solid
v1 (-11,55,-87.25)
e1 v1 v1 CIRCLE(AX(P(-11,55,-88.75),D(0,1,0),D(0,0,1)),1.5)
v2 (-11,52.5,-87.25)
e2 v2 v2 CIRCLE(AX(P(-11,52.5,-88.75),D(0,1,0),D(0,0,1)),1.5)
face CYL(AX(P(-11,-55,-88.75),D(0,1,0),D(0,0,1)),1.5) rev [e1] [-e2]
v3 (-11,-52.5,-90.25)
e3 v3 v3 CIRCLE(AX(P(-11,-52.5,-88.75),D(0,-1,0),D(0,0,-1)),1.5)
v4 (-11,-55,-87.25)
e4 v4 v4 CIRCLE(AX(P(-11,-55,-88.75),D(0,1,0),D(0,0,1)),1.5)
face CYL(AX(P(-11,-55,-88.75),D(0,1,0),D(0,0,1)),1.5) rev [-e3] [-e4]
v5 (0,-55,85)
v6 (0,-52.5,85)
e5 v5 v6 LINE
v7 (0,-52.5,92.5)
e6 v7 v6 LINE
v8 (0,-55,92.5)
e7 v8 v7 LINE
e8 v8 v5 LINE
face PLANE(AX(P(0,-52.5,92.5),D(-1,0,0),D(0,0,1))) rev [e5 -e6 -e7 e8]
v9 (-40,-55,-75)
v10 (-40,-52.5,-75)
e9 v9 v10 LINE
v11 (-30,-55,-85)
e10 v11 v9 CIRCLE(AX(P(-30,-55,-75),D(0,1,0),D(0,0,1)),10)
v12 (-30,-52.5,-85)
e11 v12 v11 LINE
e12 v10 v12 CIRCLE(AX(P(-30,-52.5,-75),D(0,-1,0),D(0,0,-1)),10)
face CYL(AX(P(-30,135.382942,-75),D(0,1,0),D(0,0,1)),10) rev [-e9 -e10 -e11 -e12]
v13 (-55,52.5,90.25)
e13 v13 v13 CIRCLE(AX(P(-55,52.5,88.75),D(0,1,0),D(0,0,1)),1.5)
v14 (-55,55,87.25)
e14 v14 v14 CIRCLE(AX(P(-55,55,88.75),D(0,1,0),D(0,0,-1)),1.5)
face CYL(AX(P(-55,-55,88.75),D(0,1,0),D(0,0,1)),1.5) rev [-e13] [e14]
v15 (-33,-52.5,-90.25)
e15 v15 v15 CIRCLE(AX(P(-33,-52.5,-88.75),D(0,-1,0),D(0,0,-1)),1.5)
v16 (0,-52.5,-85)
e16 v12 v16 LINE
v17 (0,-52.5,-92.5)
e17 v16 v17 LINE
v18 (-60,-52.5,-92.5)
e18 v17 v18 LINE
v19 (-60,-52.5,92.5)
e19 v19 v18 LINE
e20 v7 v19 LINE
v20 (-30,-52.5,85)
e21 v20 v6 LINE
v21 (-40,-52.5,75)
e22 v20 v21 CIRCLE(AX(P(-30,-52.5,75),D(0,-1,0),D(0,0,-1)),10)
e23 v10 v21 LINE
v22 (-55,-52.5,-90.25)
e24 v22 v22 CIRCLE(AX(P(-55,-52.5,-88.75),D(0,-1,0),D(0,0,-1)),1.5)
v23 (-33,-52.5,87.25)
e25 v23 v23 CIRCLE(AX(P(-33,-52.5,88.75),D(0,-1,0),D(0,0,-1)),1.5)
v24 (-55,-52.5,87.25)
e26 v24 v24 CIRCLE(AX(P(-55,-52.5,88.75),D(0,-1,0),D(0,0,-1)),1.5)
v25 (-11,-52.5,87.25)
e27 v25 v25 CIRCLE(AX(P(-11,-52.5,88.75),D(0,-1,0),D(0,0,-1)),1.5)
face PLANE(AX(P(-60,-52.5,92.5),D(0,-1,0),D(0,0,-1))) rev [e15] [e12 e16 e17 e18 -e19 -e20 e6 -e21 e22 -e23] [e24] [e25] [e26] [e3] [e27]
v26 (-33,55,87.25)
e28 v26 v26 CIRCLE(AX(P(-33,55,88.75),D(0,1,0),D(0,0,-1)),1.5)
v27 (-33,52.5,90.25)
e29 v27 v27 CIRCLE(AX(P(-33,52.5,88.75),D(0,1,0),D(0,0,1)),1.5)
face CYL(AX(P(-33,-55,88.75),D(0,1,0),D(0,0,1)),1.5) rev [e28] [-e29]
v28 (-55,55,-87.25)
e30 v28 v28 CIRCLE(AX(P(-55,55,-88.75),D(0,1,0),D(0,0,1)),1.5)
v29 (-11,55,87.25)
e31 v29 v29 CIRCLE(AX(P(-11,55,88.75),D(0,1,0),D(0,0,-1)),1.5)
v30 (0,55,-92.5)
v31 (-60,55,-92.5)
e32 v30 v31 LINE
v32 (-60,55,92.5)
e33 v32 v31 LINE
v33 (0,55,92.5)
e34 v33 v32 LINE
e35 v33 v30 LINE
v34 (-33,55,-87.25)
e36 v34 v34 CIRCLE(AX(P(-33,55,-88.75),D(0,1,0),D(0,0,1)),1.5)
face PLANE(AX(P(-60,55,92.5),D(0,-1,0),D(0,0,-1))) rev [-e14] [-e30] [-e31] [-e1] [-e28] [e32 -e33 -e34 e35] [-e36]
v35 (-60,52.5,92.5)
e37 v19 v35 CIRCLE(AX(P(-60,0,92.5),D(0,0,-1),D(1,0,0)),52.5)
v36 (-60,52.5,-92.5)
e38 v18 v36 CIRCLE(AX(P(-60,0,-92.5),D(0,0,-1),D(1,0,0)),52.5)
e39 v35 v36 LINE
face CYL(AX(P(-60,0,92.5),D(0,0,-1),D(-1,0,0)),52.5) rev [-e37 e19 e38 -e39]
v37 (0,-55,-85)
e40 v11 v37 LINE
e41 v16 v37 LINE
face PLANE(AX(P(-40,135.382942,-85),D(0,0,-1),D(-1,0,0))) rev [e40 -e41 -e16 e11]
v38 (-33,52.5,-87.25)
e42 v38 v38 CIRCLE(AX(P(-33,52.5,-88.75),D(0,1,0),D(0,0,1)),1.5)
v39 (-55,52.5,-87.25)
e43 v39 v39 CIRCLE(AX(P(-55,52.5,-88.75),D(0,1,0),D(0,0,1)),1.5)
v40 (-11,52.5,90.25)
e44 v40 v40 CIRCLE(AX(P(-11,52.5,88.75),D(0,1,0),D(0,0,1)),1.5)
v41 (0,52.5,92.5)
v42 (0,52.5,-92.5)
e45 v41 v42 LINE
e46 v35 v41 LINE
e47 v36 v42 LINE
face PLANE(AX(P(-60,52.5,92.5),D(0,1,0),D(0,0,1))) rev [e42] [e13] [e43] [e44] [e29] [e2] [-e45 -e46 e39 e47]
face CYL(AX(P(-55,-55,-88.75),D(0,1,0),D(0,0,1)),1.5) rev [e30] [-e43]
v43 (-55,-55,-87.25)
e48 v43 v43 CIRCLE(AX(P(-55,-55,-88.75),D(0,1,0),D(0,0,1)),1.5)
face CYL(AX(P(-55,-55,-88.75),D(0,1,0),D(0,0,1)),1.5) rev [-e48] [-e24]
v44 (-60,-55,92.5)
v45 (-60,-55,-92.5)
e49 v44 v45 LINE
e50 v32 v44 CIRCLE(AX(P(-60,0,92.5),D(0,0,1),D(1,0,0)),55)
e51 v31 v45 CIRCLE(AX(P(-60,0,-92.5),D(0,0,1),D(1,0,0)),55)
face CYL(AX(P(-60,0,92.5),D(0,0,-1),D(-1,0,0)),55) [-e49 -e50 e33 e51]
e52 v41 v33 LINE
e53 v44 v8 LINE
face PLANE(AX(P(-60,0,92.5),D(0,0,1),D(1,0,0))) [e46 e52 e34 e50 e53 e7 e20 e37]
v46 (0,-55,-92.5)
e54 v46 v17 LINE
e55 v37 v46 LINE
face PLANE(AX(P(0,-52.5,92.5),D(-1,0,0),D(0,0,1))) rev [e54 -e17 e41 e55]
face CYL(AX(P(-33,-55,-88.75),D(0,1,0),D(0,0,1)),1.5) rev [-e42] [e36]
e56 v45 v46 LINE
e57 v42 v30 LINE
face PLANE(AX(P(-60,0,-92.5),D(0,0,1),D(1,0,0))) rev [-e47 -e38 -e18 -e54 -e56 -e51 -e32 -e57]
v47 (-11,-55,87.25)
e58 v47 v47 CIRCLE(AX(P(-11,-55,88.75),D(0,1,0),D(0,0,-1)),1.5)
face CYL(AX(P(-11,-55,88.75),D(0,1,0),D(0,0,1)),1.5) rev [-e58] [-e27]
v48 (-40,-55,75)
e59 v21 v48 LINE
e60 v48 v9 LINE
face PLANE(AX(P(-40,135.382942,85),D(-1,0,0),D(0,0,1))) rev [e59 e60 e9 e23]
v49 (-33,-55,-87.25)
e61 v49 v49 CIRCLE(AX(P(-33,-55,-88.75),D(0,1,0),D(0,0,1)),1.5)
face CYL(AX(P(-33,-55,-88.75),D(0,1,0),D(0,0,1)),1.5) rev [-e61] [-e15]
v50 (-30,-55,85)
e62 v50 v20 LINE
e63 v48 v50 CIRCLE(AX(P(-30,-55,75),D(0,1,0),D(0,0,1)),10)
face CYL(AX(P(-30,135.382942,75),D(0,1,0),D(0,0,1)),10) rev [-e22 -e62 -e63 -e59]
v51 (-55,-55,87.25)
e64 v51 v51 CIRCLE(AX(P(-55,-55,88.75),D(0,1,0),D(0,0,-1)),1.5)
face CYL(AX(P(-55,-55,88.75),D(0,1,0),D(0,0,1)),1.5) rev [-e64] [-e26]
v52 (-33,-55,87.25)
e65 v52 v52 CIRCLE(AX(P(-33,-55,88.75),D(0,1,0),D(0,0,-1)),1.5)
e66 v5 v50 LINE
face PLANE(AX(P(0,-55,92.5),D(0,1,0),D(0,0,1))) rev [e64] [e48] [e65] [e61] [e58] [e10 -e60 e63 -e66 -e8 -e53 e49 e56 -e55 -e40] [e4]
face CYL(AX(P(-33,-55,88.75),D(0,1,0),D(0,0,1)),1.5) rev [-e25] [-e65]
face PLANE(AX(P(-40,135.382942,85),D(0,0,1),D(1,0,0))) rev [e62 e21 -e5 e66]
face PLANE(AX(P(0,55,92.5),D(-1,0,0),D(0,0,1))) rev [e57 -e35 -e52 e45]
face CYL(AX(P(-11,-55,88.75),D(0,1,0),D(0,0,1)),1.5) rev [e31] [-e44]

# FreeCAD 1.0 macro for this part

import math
import FreeCAD as App
import Part
import Sketcher
Q = App.Units.Quantity


def edges_at(feature, points):
    """Names of the edges that pass closest to the given points."""
    edges = feature.Shape.Edges
    near = lambda p: min(range(len(edges)), key=lambda i: edges[i].distToShape(Part.Vertex(*p))[0])
    return sorted({f"Edge{near(p) + 1}" for p in points})

doc = App.newDocument("Part")
body = doc.addObject("PartDesign::Body", "Body")

# Sketch on XY plane
sketch1 = doc.addObject("Sketcher::SketchObject", "Sketch")
body.addObject(sketch1)
sketch1.AttachmentSupport = (doc.XY_Plane, [""])
sketch1.MapMode = "FlatFace"
sketch1.addGeometry(Part.LineSegment(App.Vector(0, 55, 0), App.Vector(-60, 55, 0)), False)
sketch1.addGeometry(Part.ArcOfCircle(Part.Circle(App.Vector(-60, 0, 0), App.Vector(0, 0, 1), 55), math.radians(90), math.radians(270)), False)
sketch1.addGeometry(Part.LineSegment(App.Vector(-60, -55, 0), App.Vector(0, -55, 0)), False)
sketch1.addGeometry(Part.LineSegment(App.Vector(0, -55, 0), App.Vector(0, -52.5, 0)), False)
sketch1.addGeometry(Part.LineSegment(App.Vector(0, -52.5, 0), App.Vector(-60, -52.5, 0)), False)
sketch1.addGeometry(Part.ArcOfCircle(Part.Circle(App.Vector(-60, 0, 0), App.Vector(0, 0, 1), 52.5), math.radians(90), math.radians(270)), False)
sketch1.addGeometry(Part.LineSegment(App.Vector(-60, 52.5, 0), App.Vector(0, 52.5, 0)), False)
sketch1.addGeometry(Part.LineSegment(App.Vector(0, 52.5, 0), App.Vector(0, 55, 0)), False)
sketch1.addConstraint(Sketcher.Constraint("Tangent", 0, 2, 1, 1))
sketch1.addConstraint(Sketcher.Constraint("Tangent", 1, 2, 2, 1))
sketch1.addConstraint(Sketcher.Constraint("Coincident", 2, 2, 3, 1))
sketch1.addConstraint(Sketcher.Constraint("Coincident", 3, 2, 4, 1))
sketch1.addConstraint(Sketcher.Constraint("Tangent", 4, 2, 5, 2))
sketch1.addConstraint(Sketcher.Constraint("Tangent", 5, 1, 6, 1))
sketch1.addConstraint(Sketcher.Constraint("Coincident", 6, 2, 7, 1))
sketch1.addConstraint(Sketcher.Constraint("Coincident", 7, 2, 0, 1))
sketch1.addConstraint(Sketcher.Constraint("Horizontal", 0))
sketch1.addConstraint(Sketcher.Constraint("Horizontal", 2))
sketch1.addConstraint(Sketcher.Constraint("Vertical", 3))
sketch1.addConstraint(Sketcher.Constraint("Horizontal", 4))
sketch1.addConstraint(Sketcher.Constraint("Horizontal", 6))
sketch1.addConstraint(Sketcher.Constraint("Vertical", 7))
sketch1.addConstraint(Sketcher.Constraint("Coincident", 5, 3, 1, 3))
sketch1.addConstraint(Sketcher.Constraint("Symmetric", 3, 2, 6, 2, -1, 1))
sketch1.addConstraint(Sketcher.Constraint("PointOnObject", 2, 2, -2))
sketch1.addConstraint(Sketcher.Constraint("Radius", 1, Q("55 mm")))
sketch1.addConstraint(Sketcher.Constraint("Radius", 5, Q("52.5 mm")))
sketch1.addConstraint(Sketcher.Constraint("DistanceX", 0, 2, 0, 1, Q("60 mm")))
pad1 = doc.addObject("PartDesign::Pad", "Pad")
body.addObject(pad1)
pad1.Profile = sketch1
pad1.Length = 185
pad1.Midplane = True

# Sketch on XZ plane
sketch2 = doc.addObject("Sketcher::SketchObject", "Sketch001")
body.addObject(sketch2)
sketch2.AttachmentSupport = (doc.XZ_Plane, [""])
sketch2.MapMode = "FlatFace"
sketch2.AttachmentOffset = App.Placement(App.Vector(0, 0, 55), App.Rotation())
sketch2.addGeometry(Part.LineSegment(App.Vector(-40, 85, 0), App.Vector(-40, -85, 0)), False)
sketch2.addGeometry(Part.LineSegment(App.Vector(-40, -85, 0), App.Vector(40, -85, 0)), False)
sketch2.addGeometry(Part.LineSegment(App.Vector(40, -85, 0), App.Vector(40, 85, 0)), False)
sketch2.addGeometry(Part.LineSegment(App.Vector(40, 85, 0), App.Vector(-40, 85, 0)), False)
sketch2.addConstraint(Sketcher.Constraint("Coincident", 0, 2, 1, 1))
sketch2.addConstraint(Sketcher.Constraint("Coincident", 1, 2, 2, 1))
sketch2.addConstraint(Sketcher.Constraint("Coincident", 2, 2, 3, 1))
sketch2.addConstraint(Sketcher.Constraint("Coincident", 3, 2, 0, 1))
sketch2.addConstraint(Sketcher.Constraint("Vertical", 0))
sketch2.addConstraint(Sketcher.Constraint("Horizontal", 1))
sketch2.addConstraint(Sketcher.Constraint("Vertical", 2))
sketch2.addConstraint(Sketcher.Constraint("Horizontal", 3))
sketch2.addConstraint(Sketcher.Constraint("Symmetric", 0, 2, 2, 2, -1, 1))
sketch2.addConstraint(Sketcher.Constraint("DistanceX", 1, 1, 1, 2, Q("80 mm")))
sketch2.addConstraint(Sketcher.Constraint("DistanceY", 0, 2, 0, 1, Q("170 mm")))
pocket1 = doc.addObject("PartDesign::Pocket", "Pocket")
body.addObject(pocket1)
pocket1.Profile = sketch2
pocket1.Length = 2.5
doc.recompute()

fillet = doc.addObject("PartDesign::Fillet", "Fillet")
body.addObject(fillet)
fillet.Base = (pocket1, edges_at(pocket1, [(-40, -53.75, 85), (-40, -53.75, -85)]))
fillet.Radius = 10

# Sketch on XZ plane
sketch3 = doc.addObject("Sketcher::SketchObject", "Sketch002")
body.addObject(sketch3)
sketch3.AttachmentSupport = (doc.XZ_Plane, [""])
sketch3.MapMode = "FlatFace"
sketch3.addGeometry(Part.Circle(App.Vector(-55, -88.75, 0), App.Vector(0, 0, 1), 1.5), False)
sketch3.addGeometry(Part.Circle(App.Vector(-33, -88.75, 0), App.Vector(0, 0, 1), 1.5), False)
sketch3.addGeometry(Part.Circle(App.Vector(-11, -88.75, 0), App.Vector(0, 0, 1), 1.5), False)
sketch3.addGeometry(Part.Circle(App.Vector(-11, 88.75, 0), App.Vector(0, 0, 1), 1.5), False)
sketch3.addGeometry(Part.Circle(App.Vector(-33, 88.75, 0), App.Vector(0, 0, 1), 1.5), False)
sketch3.addGeometry(Part.Circle(App.Vector(-55, 88.75, 0), App.Vector(0, 0, 1), 1.5), False)
sketch3.addConstraint(Sketcher.Constraint("Equal", 0, 1))
sketch3.addConstraint(Sketcher.Constraint("Equal", 1, 2))
sketch3.addConstraint(Sketcher.Constraint("Equal", 2, 3))
sketch3.addConstraint(Sketcher.Constraint("Equal", 3, 4))
sketch3.addConstraint(Sketcher.Constraint("Equal", 4, 5))
sketch3.addConstraint(Sketcher.Constraint("Symmetric", 2, 3, 3, 3, -1))
sketch3.addConstraint(Sketcher.Constraint("Symmetric", 1, 3, 4, 3, -1))
sketch3.addConstraint(Sketcher.Constraint("Symmetric", 0, 3, 5, 3, -1))
sketch3.addConstraint(Sketcher.Constraint("Horizontal", 0, 3, 1, 3))
sketch3.addConstraint(Sketcher.Constraint("Horizontal", 1, 3, 2, 3))
sketch3.addConstraint(Sketcher.Constraint("Diameter", 0, Q("3 mm")))
sketch3.addConstraint(Sketcher.Constraint("DistanceX", 0, 3, -1, 1, Q("55 mm")))
sketch3.addConstraint(Sketcher.Constraint("DistanceX", 1, 3, -1, 1, Q("33 mm")))
sketch3.addConstraint(Sketcher.Constraint("DistanceX", 2, 3, -1, 1, Q("11 mm")))
sketch3.addConstraint(Sketcher.Constraint("DistanceY", 2, 3, 3, 3, Q("177.5 mm")))
pocket2 = doc.addObject("PartDesign::Pocket", "Pocket001")
body.addObject(pocket2)
pocket2.Profile = sketch3
pocket2.Type = "ThroughAll"
pocket2.Midplane = True

doc.recompute()
